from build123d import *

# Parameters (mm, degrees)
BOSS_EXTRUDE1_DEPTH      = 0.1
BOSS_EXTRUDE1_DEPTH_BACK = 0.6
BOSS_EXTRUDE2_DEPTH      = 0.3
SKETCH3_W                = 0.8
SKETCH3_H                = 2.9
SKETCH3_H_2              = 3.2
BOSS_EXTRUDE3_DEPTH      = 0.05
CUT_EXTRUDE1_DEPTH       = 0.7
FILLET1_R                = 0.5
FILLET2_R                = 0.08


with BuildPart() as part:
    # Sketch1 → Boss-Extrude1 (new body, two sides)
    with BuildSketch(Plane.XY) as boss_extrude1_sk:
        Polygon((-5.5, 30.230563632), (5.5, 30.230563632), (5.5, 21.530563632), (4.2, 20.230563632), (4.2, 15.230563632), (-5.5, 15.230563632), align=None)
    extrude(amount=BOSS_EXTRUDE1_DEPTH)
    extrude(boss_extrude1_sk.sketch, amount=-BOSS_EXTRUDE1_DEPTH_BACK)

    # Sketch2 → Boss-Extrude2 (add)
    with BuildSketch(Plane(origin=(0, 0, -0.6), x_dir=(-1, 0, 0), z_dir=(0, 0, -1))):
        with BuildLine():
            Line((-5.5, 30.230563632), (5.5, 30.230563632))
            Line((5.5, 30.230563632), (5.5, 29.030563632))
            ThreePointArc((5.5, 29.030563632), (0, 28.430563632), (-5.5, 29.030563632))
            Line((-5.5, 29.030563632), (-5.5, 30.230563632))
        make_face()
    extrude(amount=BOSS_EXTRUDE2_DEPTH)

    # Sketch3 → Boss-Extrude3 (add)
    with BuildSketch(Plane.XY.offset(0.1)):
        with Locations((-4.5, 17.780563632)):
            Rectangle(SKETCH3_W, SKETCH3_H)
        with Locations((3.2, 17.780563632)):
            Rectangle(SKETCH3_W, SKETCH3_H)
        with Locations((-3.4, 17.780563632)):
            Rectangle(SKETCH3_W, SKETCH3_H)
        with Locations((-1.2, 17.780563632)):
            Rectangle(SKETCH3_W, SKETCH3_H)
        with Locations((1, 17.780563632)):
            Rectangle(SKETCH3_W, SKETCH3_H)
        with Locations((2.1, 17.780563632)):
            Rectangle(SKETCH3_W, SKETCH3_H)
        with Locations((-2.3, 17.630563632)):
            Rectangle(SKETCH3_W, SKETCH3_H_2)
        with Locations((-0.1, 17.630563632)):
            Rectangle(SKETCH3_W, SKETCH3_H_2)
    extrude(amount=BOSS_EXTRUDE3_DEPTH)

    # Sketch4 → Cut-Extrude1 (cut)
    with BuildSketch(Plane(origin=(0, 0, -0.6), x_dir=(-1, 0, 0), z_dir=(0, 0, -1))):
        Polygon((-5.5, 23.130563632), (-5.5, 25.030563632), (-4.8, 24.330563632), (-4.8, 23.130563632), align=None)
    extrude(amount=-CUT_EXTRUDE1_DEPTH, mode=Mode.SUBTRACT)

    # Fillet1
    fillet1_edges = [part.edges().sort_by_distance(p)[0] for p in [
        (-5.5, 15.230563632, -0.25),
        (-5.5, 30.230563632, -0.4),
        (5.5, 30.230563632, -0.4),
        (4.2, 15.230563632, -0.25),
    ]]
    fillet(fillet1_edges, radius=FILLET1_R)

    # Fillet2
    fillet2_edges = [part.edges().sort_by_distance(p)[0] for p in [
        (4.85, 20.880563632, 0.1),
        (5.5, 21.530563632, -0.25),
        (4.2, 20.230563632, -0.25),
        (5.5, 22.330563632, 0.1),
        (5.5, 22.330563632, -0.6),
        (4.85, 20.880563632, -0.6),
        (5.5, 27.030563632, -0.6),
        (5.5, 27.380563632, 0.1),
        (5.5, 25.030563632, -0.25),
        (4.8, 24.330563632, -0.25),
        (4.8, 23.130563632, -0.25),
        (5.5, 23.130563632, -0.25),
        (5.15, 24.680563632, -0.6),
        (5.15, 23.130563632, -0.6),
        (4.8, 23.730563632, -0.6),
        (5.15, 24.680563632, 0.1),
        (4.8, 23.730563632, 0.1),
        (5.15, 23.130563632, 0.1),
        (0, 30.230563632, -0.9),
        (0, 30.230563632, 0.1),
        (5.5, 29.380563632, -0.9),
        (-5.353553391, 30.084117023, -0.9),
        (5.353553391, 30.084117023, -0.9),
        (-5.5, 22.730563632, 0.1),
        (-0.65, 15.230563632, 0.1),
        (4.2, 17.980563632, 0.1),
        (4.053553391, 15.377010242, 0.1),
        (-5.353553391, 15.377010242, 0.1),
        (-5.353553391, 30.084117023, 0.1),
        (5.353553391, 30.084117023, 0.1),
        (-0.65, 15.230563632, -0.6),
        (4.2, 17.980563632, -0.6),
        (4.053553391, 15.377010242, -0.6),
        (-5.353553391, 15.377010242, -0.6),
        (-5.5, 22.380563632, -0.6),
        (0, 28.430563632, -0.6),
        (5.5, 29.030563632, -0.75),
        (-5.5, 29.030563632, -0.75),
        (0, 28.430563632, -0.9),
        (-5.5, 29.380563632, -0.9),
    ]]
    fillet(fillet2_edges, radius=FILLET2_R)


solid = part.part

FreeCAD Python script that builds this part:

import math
import FreeCAD as App
import Part
import Sketcher
from FreeCAD import Vector
Q = App.Units.Quantity


def edges_at(feature, points):
    """Names of the edges that pass closest to the given points."""
    edges = feature.Shape.Edges
    near = lambda p: min(range(len(edges)), key=lambda i: edges[i].distToShape(Part.Vertex(*p))[0])
    return sorted({f"Edge{near(p) + 1}" for p in points})

doc = App.newDocument("Part")
params = doc.addObject("Spreadsheet::Sheet", "Params")
for row, (alias, value) in enumerate([
    ("sketch1_width", "11 mm"),
    ("sketch1_height", "15 mm"),
    ("sketch1_height2", "5 mm"),
    ("sketch1_width2", "9.7 mm"),
    ("pad1_length", "0.1 mm"),
    ("pad1_length2", "0.6 mm"),
    ("sketch2_width", "11 mm"),
    ("sketch2_height", "1.2 mm"),
    ("pad2_length", "0.3 mm"),
    ("sketch3_width", "0.8 mm"),
    ("sketch3_height", "2.9 mm"),
    ("sketch3_height2", "3.2 mm"),
    ("pad3_length", "0.05 mm"),
    ("sketch4_width", "0.7 mm"),
    ("sketch4_height", "1.9 mm"),
    ("pocket1_length", "0.7 mm"),
    ("fillet_radius", "0.5 mm"),
    ("fillet2_radius", "0.08 mm"),
], start=1):
    params.set(f"A{row}", alias)
    params.set(f"B{row}", "=" + value)
    params.setAlias(f"B{row}", alias)

body = doc.addObject("PartDesign::Body", "Body")

# Sketch on XY plane
sketch1 = body.newObject("Sketcher::SketchObject", "Sketch")
sketch1.AttachmentSupport = (doc.getObject("XY_Plane"), [""])
sketch1.MapMode = "FlatFace"
sketch1.addGeometry(Part.LineSegment(Vector(5.5, 30.2, 0), Vector(-5.5, 30.2, 0)), False)
sketch1.addGeometry(Part.LineSegment(Vector(-5.5, 30.2, 0), Vector(-5.5, 15.2, 0)), False)
sketch1.addGeometry(Part.LineSegment(Vector(-5.5, 15.2, 0), Vector(4.2, 15.2, 0)), False)
sketch1.addGeometry(Part.LineSegment(Vector(4.2, 15.2, 0), Vector(4.2, 20.2, 0)), False)
sketch1.addGeometry(Part.LineSegment(Vector(4.2, 20.2, 0), Vector(5.5, 21.5, 0)), False)
sketch1.addGeometry(Part.LineSegment(Vector(5.5, 21.5, 0), Vector(5.5, 30.2, 0)), False)
sketch1.addConstraint(Sketcher.Constraint("Coincident", 0, 2, 1, 1))
sketch1.addConstraint(Sketcher.Constraint("Coincident", 1, 2, 2, 1))
sketch1.addConstraint(Sketcher.Constraint("Coincident", 2, 2, 3, 1))
sketch1.addConstraint(Sketcher.Constraint("Coincident", 3, 2, 4, 1))
sketch1.addConstraint(Sketcher.Constraint("Coincident", 4, 2, 5, 1))
sketch1.addConstraint(Sketcher.Constraint("Coincident", 5, 2, 0, 1))
sketch1.addConstraint(Sketcher.Constraint("Horizontal", 0))
sketch1.addConstraint(Sketcher.Constraint("Vertical", 1))
sketch1.addConstraint(Sketcher.Constraint("Horizontal", 2))
sketch1.addConstraint(Sketcher.Constraint("Vertical", 3))
sketch1.addConstraint(Sketcher.Constraint("Vertical", 5))
sketch1.addConstraint(Sketcher.Constraint("DistanceX", 0, 2, 0, 1, 11.0))
sketch1.addConstraint(Sketcher.Constraint("DistanceY", 1, 2, 1, 1, 15.0))
sketch1.addConstraint(Sketcher.Constraint("DistanceY", 3, 1, 3, 2, 5.0))
sketch1.addConstraint(Sketcher.Constraint("Angle", 4, Q("45 deg")))
sketch1.addConstraint(Sketcher.Constraint("DistanceX", 2, 1, 2, 2, 9.7))
sketch1.addConstraint(Sketcher.Constraint("DistanceX", 0, 2, -1, 1, 5.5))
sketch1.addConstraint(Sketcher.Constraint("DistanceY", -1, 1, 0, 2, 30.230564))
sketch1.setExpression("Constraints[11]", "Params.sketch1_width")
sketch1.setExpression("Constraints[12]", "Params.sketch1_height")
sketch1.setExpression("Constraints[13]", "Params.sketch1_height2")
sketch1.setExpression("Constraints[15]", "Params.sketch1_width2")
pad1 = body.newObject("PartDesign::Pad", "Pad")
pad1.Profile = sketch1
pad1.Type = "TwoLengths"
pad1.setExpression("Length", "Params.pad1_length")
pad1.setExpression("Length2", "Params.pad1_length2")

# Sketch on XY plane
sketch2 = body.newObject("Sketcher::SketchObject", "Sketch001")
sketch2.AttachmentSupport = (doc.getObject("XY_Plane"), [""])
sketch2.MapMode = "FlatFace"
sketch2.AttachmentOffset = App.Placement(Vector(0, 0, -0.6), App.Rotation())
sketch2.addGeometry(Part.LineSegment(Vector(-5.5, 30.2, 0), Vector(5.5, 30.2, 0)), False)
sketch2.addGeometry(Part.LineSegment(Vector(5.5, 30.2, 0), Vector(5.5, 29, 0)), False)
sketch2.addGeometry(Part.ArcOfCircle(Part.Circle(Vector(0, 53.9, 0), Vector(0, 0, 1), 25.5), math.radians(-102), math.radians(-78)), False)
sketch2.addGeometry(Part.LineSegment(Vector(-5.5, 29, 0), Vector(-5.5, 30.2, 0)), False)
sketch2.addConstraint(Sketcher.Constraint("Coincident", 0, 2, 1, 1))
sketch2.addConstraint(Sketcher.Constraint("Coincident", 1, 2, 2, 2))
sketch2.addConstraint(Sketcher.Constraint("Coincident", 2, 1, 3, 1))
sketch2.addConstraint(Sketcher.Constraint("Coincident", 3, 2, 0, 1))
sketch2.addConstraint(Sketcher.Constraint("Horizontal", 0))
sketch2.addConstraint(Sketcher.Constraint("Vertical", 1))
sketch2.addConstraint(Sketcher.Constraint("Vertical", 3))
sketch2.addConstraint(Sketcher.Constraint("Symmetric", 1, 2, 2, 1, -2))
sketch2.addConstraint(Sketcher.Constraint("DistanceX", 0, 1, 0, 2, 11.0))
sketch2.addConstraint(Sketcher.Constraint("DistanceY", 1, 2, 1, 1, 1.2))
sketch2.addConstraint(Sketcher.Constraint("Radius", 2, 25.508333))
sketch2.addConstraint(Sketcher.Constraint("DistanceY", -1, 1, 2, 3, 53.938897))
sketch2.setExpression("Constraints[8]", "Params.sketch2_width")
sketch2.setExpression("Constraints[9]", "Params.sketch2_height")
pad2 = body.newObject("PartDesign::Pad", "Pad001")
pad2.Profile = sketch2
pad2.setExpression("Length", "Params.pad2_length")
pad2.Reversed = True

# Sketch on XY plane
sketch3 = body.newObject("Sketcher::SketchObject", "Sketch002")
sketch3.AttachmentSupport = (doc.getObject("XY_Plane"), [""])
sketch3.MapMode = "FlatFace"
sketch3.AttachmentOffset = App.Placement(Vector(0, 0, 0.1), App.Rotation())
sketch3.addGeometry(Part.LineSegment(Vector(-4.9, 19.2, 0), Vector(-4.9, 16.3, 0)), False)
sketch3.addGeometry(Part.LineSegment(Vector(-4.9, 16.3, 0), Vector(-4.1, 16.3, 0)), False)
sketch3.addGeometry(Part.LineSegment(Vector(-4.1, 16.3, 0), Vector(-4.1, 19.2, 0)), False)
sketch3.addGeometry(Part.LineSegment(Vector(-4.1, 19.2, 0), Vector(-4.9, 19.2, 0)), False)
sketch3.addGeometry(Part.LineSegment(Vector(2.8, 19.2, 0), Vector(2.8, 16.3, 0)), False)
sketch3.addGeometry(Part.LineSegment(Vector(2.8, 16.3, 0), Vector(3.6, 16.3, 0)), False)
sketch3.addGeometry(Part.LineSegment(Vector(3.6, 16.3, 0), Vector(3.6, 19.2, 0)), False)
sketch3.addGeometry(Part.LineSegment(Vector(3.6, 19.2, 0), Vector(2.8, 19.2, 0)), False)
sketch3.addGeometry(Part.LineSegment(Vector(-3.8, 19.2, 0), Vector(-3.8, 16.3, 0)), False)
sketch3.addGeometry(Part.LineSegment(Vector(-3.8, 16.3, 0), Vector(-3, 16.3, 0)), False)
sketch3.addGeometry(Part.LineSegment(Vector(-3, 16.3, 0), Vector(-3, 19.2, 0)), False)
sketch3.addGeometry(Part.LineSegment(Vector(-3, 19.2, 0), Vector(-3.8, 19.2, 0)), False)
sketch3.addGeometry(Part.LineSegment(Vector(-1.6, 19.2, 0), Vector(-1.6, 16.3, 0)), False)
sketch3.addGeometry(Part.LineSegment(Vector(-1.6, 16.3, 0), Vector(-0.8, 16.3, 0)), False)
sketch3.addGeometry(Part.LineSegment(Vector(-0.8, 16.3, 0), Vector(-0.8, 19.2, 0)), False)
sketch3.addGeometry(Part.LineSegment(Vector(-0.8, 19.2, 0), Vector(-1.6, 19.2, 0)), False)
sketch3.addGeometry(Part.LineSegment(Vector(0.6, 19.2, 0), Vector(0.6, 16.3, 0)), False)
sketch3.addGeometry(Part.LineSegment(Vector(0.6, 16.3, 0), Vector(1.4, 16.3, 0)), False)
sketch3.addGeometry(Part.LineSegment(Vector(1.4, 16.3, 0), Vector(1.4, 19.2, 0)), False)
sketch3.addGeometry(Part.LineSegment(Vector(1.4, 19.2, 0), Vector(0.6, 19.2, 0)), False)
sketch3.addGeometry(Part.LineSegment(Vector(1.7, 19.2, 0), Vector(1.7, 16.3, 0)), False)
sketch3.addGeometry(Part.LineSegment(Vector(1.7, 16.3, 0), Vector(2.5, 16.3, 0)), False)
sketch3.addGeometry(Part.LineSegment(Vector(2.5, 16.3, 0), Vector(2.5, 19.2, 0)), False)
sketch3.addGeometry(Part.LineSegment(Vector(2.5, 19.2, 0), Vector(1.7, 19.2, 0)), False)
sketch3.addGeometry(Part.LineSegment(Vector(-2.7, 19.2, 0), Vector(-2.7, 16, 0)), False)
sketch3.addGeometry(Part.LineSegment(Vector(-2.7, 16, 0), Vector(-1.9, 16, 0)), False)
sketch3.addGeometry(Part.LineSegment(Vector(-1.9, 16, 0), Vector(-1.9, 19.2, 0)), False)
sketch3.addGeometry(Part.LineSegment(Vector(-1.9, 19.2, 0), Vector(-2.7, 19.2, 0)), False)
sketch3.addGeometry(Part.LineSegment(Vector(-0.5, 19.2, 0), Vector(-0.5, 16, 0)), False)
sketch3.addGeometry(Part.LineSegment(Vector(-0.5, 16, 0), Vector(0.3, 16, 0)), False)
sketch3.addGeometry(Part.LineSegment(Vector(0.3, 16, 0), Vector(0.3, 19.2, 0)), False)
sketch3.addGeometry(Part.LineSegment(Vector(0.3, 19.2, 0), Vector(-0.5, 19.2, 0)), False)
sketch3.addConstraint(Sketcher.Constraint("Coincident", 0, 2, 1, 1))
sketch3.addConstraint(Sketcher.Constraint("Coincident", 1, 2, 2, 1))
sketch3.addConstraint(Sketcher.Constraint("Coincident", 2, 2, 3, 1))
sketch3.addConstraint(Sketcher.Constraint("Coincident", 3, 2, 0, 1))
sketch3.addConstraint(Sketcher.Constraint("Coincident", 4, 2, 5, 1))
sketch3.addConstraint(Sketcher.Constraint("Coincident", 5, 2, 6, 1))
sketch3.addConstraint(Sketcher.Constraint("Coincident", 6, 2, 7, 1))
sketch3.addConstraint(Sketcher.Constraint("Coincident", 7, 2, 4, 1))
sketch3.addConstraint(Sketcher.Constraint("Coincident", 8, 2, 9, 1))
sketch3.addConstraint(Sketcher.Constraint("Coincident", 9, 2, 10, 1))
sketch3.addConstraint(Sketcher.Constraint("Coincident", 10, 2, 11, 1))
sketch3.addConstraint(Sketcher.Constraint("Coincident", 11, 2, 8, 1))
sketch3.addConstraint(Sketcher.Constraint("Coincident", 12, 2, 13, 1))
sketch3.addConstraint(Sketcher.Constraint("Coincident", 13, 2, 14, 1))
sketch3.addConstraint(Sketcher.Constraint("Coincident", 14, 2, 15, 1))
sketch3.addConstraint(Sketcher.Constraint("Coincident", 15, 2, 12, 1))
sketch3.addConstraint(Sketcher.Constraint("Coincident", 16, 2, 17, 1))
sketch3.addConstraint(Sketcher.Constraint("Coincident", 17, 2, 18, 1))
sketch3.addConstraint(Sketcher.Constraint("Coincident", 18, 2, 19, 1))
sketch3.addConstraint(Sketcher.Constraint("Coincident", 19, 2, 16, 1))
sketch3.addConstraint(Sketcher.Constraint("Coincident", 20, 2, 21, 1))
sketch3.addConstraint(Sketcher.Constraint("Coincident", 21, 2, 22, 1))
sketch3.addConstraint(Sketcher.Constraint("Coincident", 22, 2, 23, 1))
sketch3.addConstraint(Sketcher.Constraint("Coincident", 23, 2, 20, 1))
sketch3.addConstraint(Sketcher.Constraint("Coincident", 24, 2, 25, 1))
sketch3.addConstraint(Sketcher.Constraint("Coincident", 25, 2, 26, 1))
sketch3.addConstraint(Sketcher.Constraint("Coincident", 26, 2, 27, 1))
sketch3.addConstraint(Sketcher.Constraint("Coincident", 27, 2, 24, 1))
sketch3.addConstraint(Sketcher.Constraint("Coincident", 28, 2, 29, 1))
sketch3.addConstraint(Sketcher.Constraint("Coincident", 29, 2, 30, 1))
sketch3.addConstraint(Sketcher.Constraint("Coincident", 30, 2, 31, 1))
sketch3.addConstraint(Sketcher.Constraint("Coincident", 31, 2, 28, 1))
sketch3.addConstraint(Sketcher.Constraint("Vertical", 0))
sketch3.addConstraint(Sketcher.Constraint("Horizontal", 1))
sketch3.addConstraint(Sketcher.Constraint("Vertical", 2))
sketch3.addConstraint(Sketcher.Constraint("Horizontal", 3))
sketch3.addConstraint(Sketcher.Constraint("Vertical", 4))
sketch3.addConstraint(Sketcher.Constraint("Horizontal", 5))
sketch3.addConstraint(Sketcher.Constraint("Vertical", 6))
sketch3.addConstraint(Sketcher.Constraint("Horizontal", 7))
sketch3.addConstraint(Sketcher.Constraint("Vertical", 8))
sketch3.addConstraint(Sketcher.Constraint("Horizontal", 9))
sketch3.addConstraint(Sketcher.Constraint("Vertical", 10))
sketch3.addConstraint(Sketcher.Constraint("Horizontal", 11))
sketch3.addConstraint(Sketcher.Constraint("Vertical", 12))
sketch3.addConstraint(Sketcher.Constraint("Horizontal", 13))
sketch3.addConstraint(Sketcher.Constraint("Vertical", 14))
sketch3.addConstraint(Sketcher.Constraint("Horizontal", 15))
sketch3.addConstraint(Sketcher.Constraint("Vertical", 16))
sketch3.addConstraint(Sketcher.Constraint("Horizontal", 17))
sketch3.addConstraint(Sketcher.Constraint("Vertical", 18))
sketch3.addConstraint(Sketcher.Constraint("Horizontal", 19))
sketch3.addConstraint(Sketcher.Constraint("Vertical", 20))
sketch3.addConstraint(Sketcher.Constraint("Horizontal", 21))
sketch3.addConstraint(Sketcher.Constraint("Vertical", 22))
sketch3.addConstraint(Sketcher.Constraint("Horizontal", 23))
sketch3.addConstraint(Sketcher.Constraint("Vertical", 24))
sketch3.addConstraint(Sketcher.Constraint("Horizontal", 25))
sketch3.addConstraint(Sketcher.Constraint("Vertical", 26))
sketch3.addConstraint(Sketcher.Constraint("Horizontal", 27))
sketch3.addConstraint(Sketcher.Constraint("Vertical", 28))
sketch3.addConstraint(Sketcher.Constraint("Horizontal", 29))
sketch3.addConstraint(Sketcher.Constraint("Vertical", 30))
sketch3.addConstraint(Sketcher.Constraint("Horizontal", 31))
sketch3.addConstraint(Sketcher.Constraint("Horizontal", 1, 2, 4, 2))
sketch3.addConstraint(Sketcher.Constraint("Horizontal", 3, 2, 6, 2))
sketch3.addConstraint(Sketcher.Constraint("Horizontal", 5, 2, 8, 2))
sketch3.addConstraint(Sketcher.Constraint("Horizontal", 7, 2, 10, 2))
sketch3.addConstraint(Sketcher.Constraint("Horizontal", 9, 2, 12, 2))
sketch3.addConstraint(Sketcher.Constraint("Horizontal", 11, 2, 14, 2))
sketch3.addConstraint(Sketcher.Constraint("Horizontal", 13, 2, 16, 2))
sketch3.addConstraint(Sketcher.Constraint("Horizontal", 15, 2, 18, 2))
sketch3.addConstraint(Sketcher.Constraint("Horizontal", 17, 2, 20, 2))
sketch3.addConstraint(Sketcher.Constraint("Horizontal", 19, 2, 22, 2))
sketch3.addConstraint(Sketcher.Constraint("Horizontal", 23, 2, 26, 2))
sketch3.addConstraint(Sketcher.Constraint("Horizontal", 25, 2, 28, 2))
sketch3.addConstraint(Sketcher.Constraint("Horizontal", 27, 2, 30, 2))
sketch3.addConstraint(Sketcher.Constraint("Equal", 3, 5))
sketch3.addConstraint(Sketcher.Constraint("Equal", 7, 9))
sketch3.addConstraint(Sketcher.Constraint("Equal", 11, 13))
sketch3.addConstraint(Sketcher.Constraint("Equal", 15, 17))
sketch3.addConstraint(Sketcher.Constraint("Equal", 19, 21))
sketch3.addConstraint(Sketcher.Constraint("Equal", 23, 25))
sketch3.addConstraint(Sketcher.Constraint("Equal", 27, 29))
sketch3.addConstraint(Sketcher.Constraint("DistanceX", 1, 1, 1, 2, 0.8))
sketch3.addConstraint(Sketcher.Constraint("DistanceY", 0, 2, 0, 1, 2.9))
sketch3.addConstraint(Sketcher.Constraint("DistanceY", 24, 2, 24, 1, 3.2))
sketch3.addConstraint(Sketcher.Constraint("DistanceX", 9, 2, -1, 1, 3.0))
sketch3.addConstraint(Sketcher.Constraint("DistanceX", 8, 2, 13, 2, 3.0))
sketch3.addConstraint(Sketcher.Constraint("DistanceX", 16, 2, 5, 2, 3.0))
sketch3.addConstraint(Sketcher.Constraint("DistanceX", 12, 2, 17, 2, 3.0))
sketch3.addConstraint(Sketcher.Constraint("DistanceX", 0, 2, -1, 1, 4.9))
sketch3.addConstraint(Sketcher.Constraint("DistanceX", -1, 1, 20, 2, 1.7))
sketch3.addConstraint(Sketcher.Constraint("DistanceX", 24, 2, -1, 1, 2.7))
sketch3.addConstraint(Sketcher.Constraint("DistanceX", 28, 2, -1, 1, 0.5))
sketch3.addConstraint(Sketcher.Constraint("DistanceY", -1, 1, 0, 2, 16.330564))
sketch3.setExpression("Constraints[84]", "Params.sketch3_width")
sketch3.setExpression("Constraints[85]", "Params.sketch3_height")
sketch3.setExpression("Constraints[86]", "Params.sketch3_height2")
pad3 = body.newObject("PartDesign::Pad", "Pad002")
pad3.Profile = sketch3
pad3.setExpression("Length", "Params.pad3_length")

# Sketch on XY plane
sketch4 = body.newObject("Sketcher::SketchObject", "Sketch003")
sketch4.AttachmentSupport = (doc.getObject("XY_Plane"), [""])
sketch4.MapMode = "FlatFace"
sketch4.AttachmentOffset = App.Placement(Vector(0, 0, -0.6), App.Rotation())
sketch4.addGeometry(Part.LineSegment(Vector(5.5, 25, 0), Vector(5.5, 23.1, 0)), False)
sketch4.addGeometry(Part.LineSegment(Vector(5.5, 23.1, 0), Vector(4.8, 23.1, 0)), False)
sketch4.addGeometry(Part.LineSegment(Vector(4.8, 23.1, 0), Vector(4.8, 24.3, 0)), False)
sketch4.addGeometry(Part.LineSegment(Vector(4.8, 24.3, 0), Vector(5.5, 25, 0)), False)
sketch4.addConstraint(Sketcher.Constraint("Coincident", 0, 2, 1, 1))
sketch4.addConstraint(Sketcher.Constraint("Coincident", 1, 2, 2, 1))
sketch4.addConstraint(Sketcher.Constraint("Coincident", 2, 2, 3, 1))
sketch4.addConstraint(Sketcher.Constraint("Coincident", 3, 2, 0, 1))
sketch4.addConstraint(Sketcher.Constraint("Vertical", 0))
sketch4.addConstraint(Sketcher.Constraint("Horizontal", 1))
sketch4.addConstraint(Sketcher.Constraint("Vertical", 2))
sketch4.addConstraint(Sketcher.Constraint("Angle", 3, Q("45 deg")))
sketch4.addConstraint(Sketcher.Constraint("DistanceX", 1, 2, 1, 1, 0.7))
sketch4.addConstraint(Sketcher.Constraint("DistanceY", 0, 2, 0, 1, 1.9))
sketch4.addConstraint(Sketcher.Constraint("DistanceX", -1, 1, 0, 2, 5.5))
sketch4.addConstraint(Sketcher.Constraint("DistanceY", -1, 1, 0, 2, 23.130564))
sketch4.setExpression("Constraints[8]", "Params.sketch4_width")
sketch4.setExpression("Constraints[9]", "Params.sketch4_height")
pocket1 = body.newObject("PartDesign::Pocket", "Pocket")
pocket1.Profile = sketch4
pocket1.setExpression("Length", "Params.pocket1_length")
pocket1.Reversed = True
doc.recompute()

fillet = body.newObject("PartDesign::Fillet", "Fillet")
fillet.Base = (pocket1, edges_at(pocket1, [
    (-5.5, 15.231, -0.25),
    (-5.5, 30.231, -0.4),
    (5.5, 30.231, -0.4),
    (4.2, 15.231, -0.25),
]))
fillet.setExpression("Radius", "Params.fillet_radius")
doc.recompute()

fillet2 = body.newObject("PartDesign::Fillet", "Fillet001")
fillet2.Base = (fillet, edges_at(fillet, [
    (4.85, 20.881, 0.1),
    (5.5, 21.531, -0.25),
    (4.2, 20.231, -0.25),
    (5.5, 22.331, 0.1),
    (5.5, 22.331, -0.6),
    (4.85, 20.881, -0.6),
    (5.5, 27.031, -0.6),
    (5.5, 27.381, 0.1),
    (5.5, 25.031, -0.25),
    (4.8, 24.331, -0.25),
    (4.8, 23.131, -0.25),
    (5.5, 23.131, -0.25),
    (5.15, 24.681, -0.6),
    (5.15, 23.131, -0.6),
    (4.8, 23.731, -0.6),
    (5.15, 24.681, 0.1),
    (4.8, 23.731, 0.1),
    (5.15, 23.131, 0.1),
    (0, 30.231, -0.9),
    (0, 30.231, 0.1),
    (5.5, 29.381, -0.9),
    (-5.354, 30.084, -0.9),
    (5.354, 30.084, -0.9),
    (-5.5, 22.731, 0.1),
    (-0.65, 15.231, 0.1),
    (4.2, 17.981, 0.1),
    (4.054, 15.377, 0.1),
    (-5.354, 15.377, 0.1),
    (-5.354, 30.084, 0.1),
    (5.354, 30.084, 0.1),
    (-0.65, 15.231, -0.6),
    (4.2, 17.981, -0.6),
    (4.054, 15.377, -0.6),
    (-5.354, 15.377, -0.6),
    (-5.5, 22.381, -0.6),
    (0, 28.431, -0.6),
    (5.5, 29.031, -0.75),
    (-5.5, 29.031, -0.75),
    (0, 28.431, -0.9),
    (-5.5, 29.381, -0.9),
]))
fillet2.setExpression("Radius", "Params.fillet2_radius")

doc.recompute()
